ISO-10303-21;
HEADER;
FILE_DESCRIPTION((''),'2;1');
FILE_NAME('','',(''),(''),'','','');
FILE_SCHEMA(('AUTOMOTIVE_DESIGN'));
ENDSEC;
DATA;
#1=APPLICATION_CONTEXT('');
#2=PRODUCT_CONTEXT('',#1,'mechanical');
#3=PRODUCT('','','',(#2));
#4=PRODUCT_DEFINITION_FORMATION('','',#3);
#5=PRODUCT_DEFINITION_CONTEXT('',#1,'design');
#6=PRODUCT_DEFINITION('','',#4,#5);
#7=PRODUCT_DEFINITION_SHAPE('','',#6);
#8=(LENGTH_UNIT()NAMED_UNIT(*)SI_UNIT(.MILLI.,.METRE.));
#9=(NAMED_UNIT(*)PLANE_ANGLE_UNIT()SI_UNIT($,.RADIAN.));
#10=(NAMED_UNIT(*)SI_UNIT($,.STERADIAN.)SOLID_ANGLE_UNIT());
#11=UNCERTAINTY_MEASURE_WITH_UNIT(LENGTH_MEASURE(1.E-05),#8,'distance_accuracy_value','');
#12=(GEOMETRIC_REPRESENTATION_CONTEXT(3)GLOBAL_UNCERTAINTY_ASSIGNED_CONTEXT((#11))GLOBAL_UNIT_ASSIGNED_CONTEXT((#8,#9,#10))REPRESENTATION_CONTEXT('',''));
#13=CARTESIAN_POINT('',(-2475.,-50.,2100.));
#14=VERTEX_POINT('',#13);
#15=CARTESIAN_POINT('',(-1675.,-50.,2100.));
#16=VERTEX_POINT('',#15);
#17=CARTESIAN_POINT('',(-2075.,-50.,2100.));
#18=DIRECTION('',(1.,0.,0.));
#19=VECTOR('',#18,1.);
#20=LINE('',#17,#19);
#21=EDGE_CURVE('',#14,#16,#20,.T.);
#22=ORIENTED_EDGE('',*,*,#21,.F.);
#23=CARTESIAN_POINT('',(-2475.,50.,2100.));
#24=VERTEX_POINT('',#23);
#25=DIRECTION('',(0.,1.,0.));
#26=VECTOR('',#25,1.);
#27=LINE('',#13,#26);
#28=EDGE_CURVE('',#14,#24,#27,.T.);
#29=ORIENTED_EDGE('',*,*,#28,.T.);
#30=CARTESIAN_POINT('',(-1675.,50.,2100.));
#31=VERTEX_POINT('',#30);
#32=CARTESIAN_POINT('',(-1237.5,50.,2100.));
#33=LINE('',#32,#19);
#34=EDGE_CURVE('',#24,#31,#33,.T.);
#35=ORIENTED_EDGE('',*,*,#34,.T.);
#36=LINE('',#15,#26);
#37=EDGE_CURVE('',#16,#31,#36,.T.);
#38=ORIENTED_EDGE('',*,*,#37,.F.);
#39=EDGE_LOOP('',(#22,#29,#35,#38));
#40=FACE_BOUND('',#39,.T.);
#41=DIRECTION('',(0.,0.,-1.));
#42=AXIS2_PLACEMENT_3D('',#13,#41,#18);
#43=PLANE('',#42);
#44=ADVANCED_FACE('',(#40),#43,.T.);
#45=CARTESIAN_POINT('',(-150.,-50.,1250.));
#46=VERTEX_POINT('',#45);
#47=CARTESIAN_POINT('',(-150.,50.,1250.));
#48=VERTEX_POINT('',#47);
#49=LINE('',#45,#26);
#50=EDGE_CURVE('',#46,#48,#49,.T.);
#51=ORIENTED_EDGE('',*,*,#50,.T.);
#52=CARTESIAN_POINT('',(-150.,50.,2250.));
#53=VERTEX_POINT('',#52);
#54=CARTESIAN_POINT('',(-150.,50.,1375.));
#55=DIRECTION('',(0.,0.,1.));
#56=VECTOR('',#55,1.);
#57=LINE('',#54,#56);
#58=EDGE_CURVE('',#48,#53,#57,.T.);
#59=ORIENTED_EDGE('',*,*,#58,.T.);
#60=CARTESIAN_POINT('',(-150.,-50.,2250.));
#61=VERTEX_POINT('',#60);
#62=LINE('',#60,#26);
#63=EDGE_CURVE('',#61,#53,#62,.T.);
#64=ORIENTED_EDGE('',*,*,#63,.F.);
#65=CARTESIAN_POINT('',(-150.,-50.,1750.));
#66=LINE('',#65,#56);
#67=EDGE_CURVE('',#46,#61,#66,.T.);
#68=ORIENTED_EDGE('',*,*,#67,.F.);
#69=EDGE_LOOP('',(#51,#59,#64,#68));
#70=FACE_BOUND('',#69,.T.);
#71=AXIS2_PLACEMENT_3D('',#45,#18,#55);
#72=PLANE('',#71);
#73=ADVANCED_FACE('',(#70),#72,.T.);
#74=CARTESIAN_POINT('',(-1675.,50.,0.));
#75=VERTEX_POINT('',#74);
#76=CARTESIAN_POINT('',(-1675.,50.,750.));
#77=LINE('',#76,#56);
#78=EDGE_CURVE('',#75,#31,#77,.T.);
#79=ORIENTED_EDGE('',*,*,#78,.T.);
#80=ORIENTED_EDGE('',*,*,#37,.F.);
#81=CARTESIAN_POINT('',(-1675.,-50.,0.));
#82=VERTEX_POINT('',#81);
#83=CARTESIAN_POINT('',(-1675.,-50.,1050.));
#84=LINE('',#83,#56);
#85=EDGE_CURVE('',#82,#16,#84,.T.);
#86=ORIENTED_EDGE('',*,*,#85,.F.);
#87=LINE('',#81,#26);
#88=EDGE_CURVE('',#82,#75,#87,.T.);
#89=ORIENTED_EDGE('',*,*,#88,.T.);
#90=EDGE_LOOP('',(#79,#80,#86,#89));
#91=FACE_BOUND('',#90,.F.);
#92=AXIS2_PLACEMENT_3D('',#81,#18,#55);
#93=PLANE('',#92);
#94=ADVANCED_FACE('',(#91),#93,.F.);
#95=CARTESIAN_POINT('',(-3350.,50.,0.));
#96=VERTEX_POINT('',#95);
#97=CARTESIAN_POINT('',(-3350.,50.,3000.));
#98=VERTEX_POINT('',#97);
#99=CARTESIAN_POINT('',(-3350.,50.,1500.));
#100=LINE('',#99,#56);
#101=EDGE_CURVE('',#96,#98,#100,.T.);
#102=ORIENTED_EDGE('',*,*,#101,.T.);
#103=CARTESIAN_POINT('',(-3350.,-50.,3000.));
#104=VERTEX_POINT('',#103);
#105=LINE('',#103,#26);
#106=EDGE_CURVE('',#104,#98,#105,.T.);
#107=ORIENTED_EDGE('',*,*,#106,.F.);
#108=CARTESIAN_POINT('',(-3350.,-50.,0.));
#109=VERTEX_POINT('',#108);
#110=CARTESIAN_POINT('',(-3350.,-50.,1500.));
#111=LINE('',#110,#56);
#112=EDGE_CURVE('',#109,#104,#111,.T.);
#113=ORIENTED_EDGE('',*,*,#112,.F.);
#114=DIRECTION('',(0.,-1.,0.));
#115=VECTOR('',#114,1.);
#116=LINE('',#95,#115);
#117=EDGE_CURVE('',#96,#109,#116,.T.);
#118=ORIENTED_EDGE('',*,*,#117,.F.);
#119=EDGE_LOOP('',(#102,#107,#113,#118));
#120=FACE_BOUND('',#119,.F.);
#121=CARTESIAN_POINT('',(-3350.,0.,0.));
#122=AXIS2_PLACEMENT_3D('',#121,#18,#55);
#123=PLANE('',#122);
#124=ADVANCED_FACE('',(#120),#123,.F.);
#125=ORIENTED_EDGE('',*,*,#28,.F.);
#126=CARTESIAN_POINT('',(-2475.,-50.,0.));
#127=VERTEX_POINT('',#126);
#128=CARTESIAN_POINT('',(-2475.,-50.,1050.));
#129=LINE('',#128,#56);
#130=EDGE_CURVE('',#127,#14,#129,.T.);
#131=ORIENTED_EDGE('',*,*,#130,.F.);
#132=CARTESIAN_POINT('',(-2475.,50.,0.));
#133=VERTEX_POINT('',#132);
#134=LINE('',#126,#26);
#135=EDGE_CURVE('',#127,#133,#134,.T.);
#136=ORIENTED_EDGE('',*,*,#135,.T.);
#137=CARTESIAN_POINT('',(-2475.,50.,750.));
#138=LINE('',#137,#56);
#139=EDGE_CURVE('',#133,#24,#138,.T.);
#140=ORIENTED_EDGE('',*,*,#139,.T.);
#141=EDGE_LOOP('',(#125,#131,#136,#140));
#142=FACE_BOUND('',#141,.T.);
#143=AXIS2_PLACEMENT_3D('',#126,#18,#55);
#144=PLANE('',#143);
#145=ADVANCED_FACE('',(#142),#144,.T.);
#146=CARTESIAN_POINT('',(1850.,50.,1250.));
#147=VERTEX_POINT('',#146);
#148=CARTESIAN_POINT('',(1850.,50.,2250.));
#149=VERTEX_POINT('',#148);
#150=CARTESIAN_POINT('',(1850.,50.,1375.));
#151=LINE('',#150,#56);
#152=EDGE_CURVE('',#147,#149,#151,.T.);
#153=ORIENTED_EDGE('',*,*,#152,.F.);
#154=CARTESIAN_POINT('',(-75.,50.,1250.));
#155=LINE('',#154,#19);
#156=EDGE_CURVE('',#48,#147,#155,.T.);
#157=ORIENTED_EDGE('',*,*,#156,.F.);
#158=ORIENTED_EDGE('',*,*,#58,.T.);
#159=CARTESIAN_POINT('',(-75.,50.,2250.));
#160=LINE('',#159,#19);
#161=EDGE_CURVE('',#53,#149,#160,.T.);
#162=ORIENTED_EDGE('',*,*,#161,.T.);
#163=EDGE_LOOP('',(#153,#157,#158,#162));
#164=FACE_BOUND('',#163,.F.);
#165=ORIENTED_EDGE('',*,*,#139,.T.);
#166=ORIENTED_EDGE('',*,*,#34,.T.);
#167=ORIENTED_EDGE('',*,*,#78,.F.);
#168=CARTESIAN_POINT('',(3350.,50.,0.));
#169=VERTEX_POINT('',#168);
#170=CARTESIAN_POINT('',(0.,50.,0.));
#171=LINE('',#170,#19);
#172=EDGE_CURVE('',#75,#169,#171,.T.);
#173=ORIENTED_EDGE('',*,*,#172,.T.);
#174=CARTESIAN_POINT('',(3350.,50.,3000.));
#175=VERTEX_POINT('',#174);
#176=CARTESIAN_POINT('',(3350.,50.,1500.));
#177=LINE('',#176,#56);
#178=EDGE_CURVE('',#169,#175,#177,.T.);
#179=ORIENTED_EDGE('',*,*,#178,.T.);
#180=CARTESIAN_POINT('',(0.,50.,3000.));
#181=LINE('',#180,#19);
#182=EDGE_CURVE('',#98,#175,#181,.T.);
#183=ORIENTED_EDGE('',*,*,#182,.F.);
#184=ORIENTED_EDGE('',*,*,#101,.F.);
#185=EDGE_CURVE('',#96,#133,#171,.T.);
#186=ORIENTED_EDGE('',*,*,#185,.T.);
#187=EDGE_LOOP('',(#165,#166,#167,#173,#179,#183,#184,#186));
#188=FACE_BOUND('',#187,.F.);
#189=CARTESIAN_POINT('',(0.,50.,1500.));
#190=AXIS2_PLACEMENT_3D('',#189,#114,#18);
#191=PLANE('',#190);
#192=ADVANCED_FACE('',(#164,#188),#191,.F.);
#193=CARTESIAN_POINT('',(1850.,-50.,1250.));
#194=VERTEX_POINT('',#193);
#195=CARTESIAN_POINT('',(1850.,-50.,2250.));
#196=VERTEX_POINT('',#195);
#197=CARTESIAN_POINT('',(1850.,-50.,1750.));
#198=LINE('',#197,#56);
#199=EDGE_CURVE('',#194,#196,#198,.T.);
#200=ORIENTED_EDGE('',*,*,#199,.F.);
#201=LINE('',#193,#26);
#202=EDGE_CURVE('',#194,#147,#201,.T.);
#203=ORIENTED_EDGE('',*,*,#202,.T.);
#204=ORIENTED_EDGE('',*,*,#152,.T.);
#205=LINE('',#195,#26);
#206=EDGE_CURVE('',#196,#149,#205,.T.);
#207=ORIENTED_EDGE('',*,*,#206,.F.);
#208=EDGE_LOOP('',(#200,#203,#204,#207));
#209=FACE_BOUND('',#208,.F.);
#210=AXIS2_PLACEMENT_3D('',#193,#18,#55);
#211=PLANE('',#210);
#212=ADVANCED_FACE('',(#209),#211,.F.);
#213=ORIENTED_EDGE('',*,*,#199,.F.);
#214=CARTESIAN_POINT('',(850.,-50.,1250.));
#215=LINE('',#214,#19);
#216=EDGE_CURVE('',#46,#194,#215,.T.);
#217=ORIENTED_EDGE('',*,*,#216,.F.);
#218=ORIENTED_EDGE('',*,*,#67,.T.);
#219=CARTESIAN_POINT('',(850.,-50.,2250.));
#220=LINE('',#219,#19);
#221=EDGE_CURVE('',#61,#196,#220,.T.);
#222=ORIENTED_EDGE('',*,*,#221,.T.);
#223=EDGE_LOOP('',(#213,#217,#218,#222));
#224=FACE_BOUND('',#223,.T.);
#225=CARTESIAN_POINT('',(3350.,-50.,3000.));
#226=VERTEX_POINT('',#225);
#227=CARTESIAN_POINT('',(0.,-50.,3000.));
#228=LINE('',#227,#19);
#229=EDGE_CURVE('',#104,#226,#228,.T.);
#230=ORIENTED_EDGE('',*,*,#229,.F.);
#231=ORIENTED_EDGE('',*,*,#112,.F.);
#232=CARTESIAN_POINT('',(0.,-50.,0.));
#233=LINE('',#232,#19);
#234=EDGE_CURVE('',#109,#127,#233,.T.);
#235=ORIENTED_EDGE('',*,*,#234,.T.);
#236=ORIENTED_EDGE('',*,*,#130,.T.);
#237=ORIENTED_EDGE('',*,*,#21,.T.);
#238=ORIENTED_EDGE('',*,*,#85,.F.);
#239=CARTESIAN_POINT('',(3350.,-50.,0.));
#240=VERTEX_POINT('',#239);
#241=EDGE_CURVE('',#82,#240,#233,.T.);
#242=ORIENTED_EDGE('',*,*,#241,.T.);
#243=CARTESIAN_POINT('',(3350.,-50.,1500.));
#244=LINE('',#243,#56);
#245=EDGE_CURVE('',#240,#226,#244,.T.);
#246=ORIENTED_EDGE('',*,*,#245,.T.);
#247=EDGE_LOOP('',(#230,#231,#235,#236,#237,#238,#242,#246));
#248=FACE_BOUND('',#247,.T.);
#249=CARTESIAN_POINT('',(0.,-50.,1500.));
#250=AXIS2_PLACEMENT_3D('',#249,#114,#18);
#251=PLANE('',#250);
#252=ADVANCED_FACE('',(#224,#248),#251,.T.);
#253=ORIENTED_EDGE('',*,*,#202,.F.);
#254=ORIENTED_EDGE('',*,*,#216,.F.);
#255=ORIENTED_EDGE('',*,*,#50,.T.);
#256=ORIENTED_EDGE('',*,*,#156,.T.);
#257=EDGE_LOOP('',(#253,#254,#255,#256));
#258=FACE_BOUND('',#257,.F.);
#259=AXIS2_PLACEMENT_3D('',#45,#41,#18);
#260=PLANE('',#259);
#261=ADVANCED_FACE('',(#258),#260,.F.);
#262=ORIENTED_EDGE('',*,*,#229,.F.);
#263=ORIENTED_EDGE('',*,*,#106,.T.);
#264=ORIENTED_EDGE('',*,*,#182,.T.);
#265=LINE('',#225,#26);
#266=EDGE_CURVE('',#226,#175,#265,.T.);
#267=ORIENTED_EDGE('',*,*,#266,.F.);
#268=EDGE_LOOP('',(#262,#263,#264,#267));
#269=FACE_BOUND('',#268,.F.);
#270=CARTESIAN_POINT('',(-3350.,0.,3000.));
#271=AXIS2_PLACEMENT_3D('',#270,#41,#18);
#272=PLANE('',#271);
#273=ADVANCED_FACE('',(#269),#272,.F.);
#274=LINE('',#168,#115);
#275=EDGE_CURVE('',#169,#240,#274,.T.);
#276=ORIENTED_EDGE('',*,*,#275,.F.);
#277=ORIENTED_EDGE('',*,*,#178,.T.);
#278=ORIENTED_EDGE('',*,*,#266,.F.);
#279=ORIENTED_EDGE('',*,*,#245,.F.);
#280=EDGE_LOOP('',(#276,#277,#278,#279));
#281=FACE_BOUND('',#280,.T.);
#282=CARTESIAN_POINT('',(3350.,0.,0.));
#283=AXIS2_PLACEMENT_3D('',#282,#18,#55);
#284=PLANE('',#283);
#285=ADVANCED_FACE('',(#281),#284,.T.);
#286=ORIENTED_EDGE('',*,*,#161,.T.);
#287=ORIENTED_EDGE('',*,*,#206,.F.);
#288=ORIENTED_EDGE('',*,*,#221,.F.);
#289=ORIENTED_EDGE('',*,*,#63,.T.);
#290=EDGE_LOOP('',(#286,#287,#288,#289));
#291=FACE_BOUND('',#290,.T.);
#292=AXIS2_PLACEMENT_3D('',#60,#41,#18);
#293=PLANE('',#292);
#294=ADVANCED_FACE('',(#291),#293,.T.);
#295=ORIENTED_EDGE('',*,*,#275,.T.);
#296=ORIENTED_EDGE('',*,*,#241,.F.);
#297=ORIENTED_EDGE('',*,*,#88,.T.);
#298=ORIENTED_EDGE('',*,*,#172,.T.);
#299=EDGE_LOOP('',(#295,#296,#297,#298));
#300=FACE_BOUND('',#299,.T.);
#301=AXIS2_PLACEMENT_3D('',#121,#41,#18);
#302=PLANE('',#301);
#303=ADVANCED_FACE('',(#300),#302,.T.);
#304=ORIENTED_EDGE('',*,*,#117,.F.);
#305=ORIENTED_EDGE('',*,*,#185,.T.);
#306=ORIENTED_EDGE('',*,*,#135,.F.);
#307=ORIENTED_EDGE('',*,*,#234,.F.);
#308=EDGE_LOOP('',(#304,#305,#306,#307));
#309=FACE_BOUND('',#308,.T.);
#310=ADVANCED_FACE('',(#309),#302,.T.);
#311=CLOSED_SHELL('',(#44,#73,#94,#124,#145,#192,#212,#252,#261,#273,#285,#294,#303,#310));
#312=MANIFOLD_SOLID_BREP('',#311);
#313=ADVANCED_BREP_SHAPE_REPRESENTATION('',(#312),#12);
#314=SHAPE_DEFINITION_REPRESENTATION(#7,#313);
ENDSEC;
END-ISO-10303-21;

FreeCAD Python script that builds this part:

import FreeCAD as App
import Part
import Sketcher


def add_polygon(sketch, points):
    """Adds a closed chain of lines whose ends are joined by coincident constraints."""
    first, n = sketch.GeometryCount, len(points)
    for a, b in zip(points, points[1:] + points[:1]):
        sketch.addGeometry(Part.LineSegment(App.Vector(*a, 0), App.Vector(*b, 0)), False)
    for i in range(n):
        sketch.addConstraint(Sketcher.Constraint("Coincident", first + i, 2, first + (i + 1) % n, 1))

doc = App.newDocument("Part")
body = doc.addObject("PartDesign::Body", "Body")

sketch1 = doc.addObject("Sketcher::SketchObject", "Sketch")
body.addObject(sketch1)
sketch1.AttachmentSupport = (doc.XZ_Plane, [""])
sketch1.MapMode = "FlatFace"
add_polygon(sketch1, [(-3350, 3000), (-3350, 0), (3350, 0), (3350, 3000)])
sketch1.addConstraint(Sketcher.Constraint("Vertical", 0))
sketch1.addConstraint(Sketcher.Constraint("Horizontal", 1))
sketch1.addConstraint(Sketcher.Constraint("Vertical", 2))
sketch1.addConstraint(Sketcher.Constraint("Horizontal", 3))
sketch1.addConstraint(Sketcher.Constraint("Symmetric", 0, 2, 1, 2, -1, 1))
sketch1.addConstraint(Sketcher.Constraint("DistanceX", 1, 1, 1, 2, 6700.0))
sketch1.addConstraint(Sketcher.Constraint("DistanceY", 0, 2, 0, 1, 3000.0))
pad1 = doc.addObject("PartDesign::Pad", "Pad")
body.addObject(pad1)
pad1.Profile = sketch1
pad1.Length = 100
pad1.Midplane = True

sketch2 = doc.addObject("Sketcher::SketchObject", "Sketch001")
body.addObject(sketch2)
sketch2.AttachmentSupport = (doc.XZ_Plane, [""])
sketch2.MapMode = "FlatFace"
sketch2.AttachmentOffset = App.Placement(App.Vector(0, 0, 50), App.Rotation())
add_polygon(sketch2, [(-150, 2250), (-150, 1250), (1850, 1250), (1850, 2250)])
add_polygon(sketch2, [(-2475, 2100), (-2475, 0), (-1675, 0), (-1675, 2100)])
sketch2.addConstraint(Sketcher.Constraint("Vertical", 0))
sketch2.addConstraint(Sketcher.Constraint("Horizontal", 1))
sketch2.addConstraint(Sketcher.Constraint("Vertical", 2))
sketch2.addConstraint(Sketcher.Constraint("Horizontal", 3))
sketch2.addConstraint(Sketcher.Constraint("Vertical", 4))
sketch2.addConstraint(Sketcher.Constraint("Horizontal", 5))
sketch2.addConstraint(Sketcher.Constraint("Vertical", 6))
sketch2.addConstraint(Sketcher.Constraint("Horizontal", 7))
sketch2.addConstraint(Sketcher.Constraint("PointOnObject", 4, 2, -1))
sketch2.addConstraint(Sketcher.Constraint("DistanceX", 1, 1, 1, 2, 2000.0))
sketch2.addConstraint(Sketcher.Constraint("DistanceX", 5, 1, 5, 2, 800.0))
sketch2.addConstraint(Sketcher.Constraint("DistanceY", 0, 2, 0, 1, 1000.0))
sketch2.addConstraint(Sketcher.Constraint("DistanceY", 4, 2, 4, 1, 2100.0))
sketch2.addConstraint(Sketcher.Constraint("DistanceX", 0, 2, -1, 1, 150.0))
sketch2.addConstraint(Sketcher.Constraint("DistanceY", -1, 1, 0, 2, 1250.0))
sketch2.addConstraint(Sketcher.Constraint("DistanceX", 4, 2, -1, 1, 2475.0))
pocket1 = doc.addObject("PartDesign::Pocket", "Pocket")
body.addObject(pocket1)
pocket1.Profile = sketch2
pocket1.Type = "ThroughAll"

doc.recompute()
